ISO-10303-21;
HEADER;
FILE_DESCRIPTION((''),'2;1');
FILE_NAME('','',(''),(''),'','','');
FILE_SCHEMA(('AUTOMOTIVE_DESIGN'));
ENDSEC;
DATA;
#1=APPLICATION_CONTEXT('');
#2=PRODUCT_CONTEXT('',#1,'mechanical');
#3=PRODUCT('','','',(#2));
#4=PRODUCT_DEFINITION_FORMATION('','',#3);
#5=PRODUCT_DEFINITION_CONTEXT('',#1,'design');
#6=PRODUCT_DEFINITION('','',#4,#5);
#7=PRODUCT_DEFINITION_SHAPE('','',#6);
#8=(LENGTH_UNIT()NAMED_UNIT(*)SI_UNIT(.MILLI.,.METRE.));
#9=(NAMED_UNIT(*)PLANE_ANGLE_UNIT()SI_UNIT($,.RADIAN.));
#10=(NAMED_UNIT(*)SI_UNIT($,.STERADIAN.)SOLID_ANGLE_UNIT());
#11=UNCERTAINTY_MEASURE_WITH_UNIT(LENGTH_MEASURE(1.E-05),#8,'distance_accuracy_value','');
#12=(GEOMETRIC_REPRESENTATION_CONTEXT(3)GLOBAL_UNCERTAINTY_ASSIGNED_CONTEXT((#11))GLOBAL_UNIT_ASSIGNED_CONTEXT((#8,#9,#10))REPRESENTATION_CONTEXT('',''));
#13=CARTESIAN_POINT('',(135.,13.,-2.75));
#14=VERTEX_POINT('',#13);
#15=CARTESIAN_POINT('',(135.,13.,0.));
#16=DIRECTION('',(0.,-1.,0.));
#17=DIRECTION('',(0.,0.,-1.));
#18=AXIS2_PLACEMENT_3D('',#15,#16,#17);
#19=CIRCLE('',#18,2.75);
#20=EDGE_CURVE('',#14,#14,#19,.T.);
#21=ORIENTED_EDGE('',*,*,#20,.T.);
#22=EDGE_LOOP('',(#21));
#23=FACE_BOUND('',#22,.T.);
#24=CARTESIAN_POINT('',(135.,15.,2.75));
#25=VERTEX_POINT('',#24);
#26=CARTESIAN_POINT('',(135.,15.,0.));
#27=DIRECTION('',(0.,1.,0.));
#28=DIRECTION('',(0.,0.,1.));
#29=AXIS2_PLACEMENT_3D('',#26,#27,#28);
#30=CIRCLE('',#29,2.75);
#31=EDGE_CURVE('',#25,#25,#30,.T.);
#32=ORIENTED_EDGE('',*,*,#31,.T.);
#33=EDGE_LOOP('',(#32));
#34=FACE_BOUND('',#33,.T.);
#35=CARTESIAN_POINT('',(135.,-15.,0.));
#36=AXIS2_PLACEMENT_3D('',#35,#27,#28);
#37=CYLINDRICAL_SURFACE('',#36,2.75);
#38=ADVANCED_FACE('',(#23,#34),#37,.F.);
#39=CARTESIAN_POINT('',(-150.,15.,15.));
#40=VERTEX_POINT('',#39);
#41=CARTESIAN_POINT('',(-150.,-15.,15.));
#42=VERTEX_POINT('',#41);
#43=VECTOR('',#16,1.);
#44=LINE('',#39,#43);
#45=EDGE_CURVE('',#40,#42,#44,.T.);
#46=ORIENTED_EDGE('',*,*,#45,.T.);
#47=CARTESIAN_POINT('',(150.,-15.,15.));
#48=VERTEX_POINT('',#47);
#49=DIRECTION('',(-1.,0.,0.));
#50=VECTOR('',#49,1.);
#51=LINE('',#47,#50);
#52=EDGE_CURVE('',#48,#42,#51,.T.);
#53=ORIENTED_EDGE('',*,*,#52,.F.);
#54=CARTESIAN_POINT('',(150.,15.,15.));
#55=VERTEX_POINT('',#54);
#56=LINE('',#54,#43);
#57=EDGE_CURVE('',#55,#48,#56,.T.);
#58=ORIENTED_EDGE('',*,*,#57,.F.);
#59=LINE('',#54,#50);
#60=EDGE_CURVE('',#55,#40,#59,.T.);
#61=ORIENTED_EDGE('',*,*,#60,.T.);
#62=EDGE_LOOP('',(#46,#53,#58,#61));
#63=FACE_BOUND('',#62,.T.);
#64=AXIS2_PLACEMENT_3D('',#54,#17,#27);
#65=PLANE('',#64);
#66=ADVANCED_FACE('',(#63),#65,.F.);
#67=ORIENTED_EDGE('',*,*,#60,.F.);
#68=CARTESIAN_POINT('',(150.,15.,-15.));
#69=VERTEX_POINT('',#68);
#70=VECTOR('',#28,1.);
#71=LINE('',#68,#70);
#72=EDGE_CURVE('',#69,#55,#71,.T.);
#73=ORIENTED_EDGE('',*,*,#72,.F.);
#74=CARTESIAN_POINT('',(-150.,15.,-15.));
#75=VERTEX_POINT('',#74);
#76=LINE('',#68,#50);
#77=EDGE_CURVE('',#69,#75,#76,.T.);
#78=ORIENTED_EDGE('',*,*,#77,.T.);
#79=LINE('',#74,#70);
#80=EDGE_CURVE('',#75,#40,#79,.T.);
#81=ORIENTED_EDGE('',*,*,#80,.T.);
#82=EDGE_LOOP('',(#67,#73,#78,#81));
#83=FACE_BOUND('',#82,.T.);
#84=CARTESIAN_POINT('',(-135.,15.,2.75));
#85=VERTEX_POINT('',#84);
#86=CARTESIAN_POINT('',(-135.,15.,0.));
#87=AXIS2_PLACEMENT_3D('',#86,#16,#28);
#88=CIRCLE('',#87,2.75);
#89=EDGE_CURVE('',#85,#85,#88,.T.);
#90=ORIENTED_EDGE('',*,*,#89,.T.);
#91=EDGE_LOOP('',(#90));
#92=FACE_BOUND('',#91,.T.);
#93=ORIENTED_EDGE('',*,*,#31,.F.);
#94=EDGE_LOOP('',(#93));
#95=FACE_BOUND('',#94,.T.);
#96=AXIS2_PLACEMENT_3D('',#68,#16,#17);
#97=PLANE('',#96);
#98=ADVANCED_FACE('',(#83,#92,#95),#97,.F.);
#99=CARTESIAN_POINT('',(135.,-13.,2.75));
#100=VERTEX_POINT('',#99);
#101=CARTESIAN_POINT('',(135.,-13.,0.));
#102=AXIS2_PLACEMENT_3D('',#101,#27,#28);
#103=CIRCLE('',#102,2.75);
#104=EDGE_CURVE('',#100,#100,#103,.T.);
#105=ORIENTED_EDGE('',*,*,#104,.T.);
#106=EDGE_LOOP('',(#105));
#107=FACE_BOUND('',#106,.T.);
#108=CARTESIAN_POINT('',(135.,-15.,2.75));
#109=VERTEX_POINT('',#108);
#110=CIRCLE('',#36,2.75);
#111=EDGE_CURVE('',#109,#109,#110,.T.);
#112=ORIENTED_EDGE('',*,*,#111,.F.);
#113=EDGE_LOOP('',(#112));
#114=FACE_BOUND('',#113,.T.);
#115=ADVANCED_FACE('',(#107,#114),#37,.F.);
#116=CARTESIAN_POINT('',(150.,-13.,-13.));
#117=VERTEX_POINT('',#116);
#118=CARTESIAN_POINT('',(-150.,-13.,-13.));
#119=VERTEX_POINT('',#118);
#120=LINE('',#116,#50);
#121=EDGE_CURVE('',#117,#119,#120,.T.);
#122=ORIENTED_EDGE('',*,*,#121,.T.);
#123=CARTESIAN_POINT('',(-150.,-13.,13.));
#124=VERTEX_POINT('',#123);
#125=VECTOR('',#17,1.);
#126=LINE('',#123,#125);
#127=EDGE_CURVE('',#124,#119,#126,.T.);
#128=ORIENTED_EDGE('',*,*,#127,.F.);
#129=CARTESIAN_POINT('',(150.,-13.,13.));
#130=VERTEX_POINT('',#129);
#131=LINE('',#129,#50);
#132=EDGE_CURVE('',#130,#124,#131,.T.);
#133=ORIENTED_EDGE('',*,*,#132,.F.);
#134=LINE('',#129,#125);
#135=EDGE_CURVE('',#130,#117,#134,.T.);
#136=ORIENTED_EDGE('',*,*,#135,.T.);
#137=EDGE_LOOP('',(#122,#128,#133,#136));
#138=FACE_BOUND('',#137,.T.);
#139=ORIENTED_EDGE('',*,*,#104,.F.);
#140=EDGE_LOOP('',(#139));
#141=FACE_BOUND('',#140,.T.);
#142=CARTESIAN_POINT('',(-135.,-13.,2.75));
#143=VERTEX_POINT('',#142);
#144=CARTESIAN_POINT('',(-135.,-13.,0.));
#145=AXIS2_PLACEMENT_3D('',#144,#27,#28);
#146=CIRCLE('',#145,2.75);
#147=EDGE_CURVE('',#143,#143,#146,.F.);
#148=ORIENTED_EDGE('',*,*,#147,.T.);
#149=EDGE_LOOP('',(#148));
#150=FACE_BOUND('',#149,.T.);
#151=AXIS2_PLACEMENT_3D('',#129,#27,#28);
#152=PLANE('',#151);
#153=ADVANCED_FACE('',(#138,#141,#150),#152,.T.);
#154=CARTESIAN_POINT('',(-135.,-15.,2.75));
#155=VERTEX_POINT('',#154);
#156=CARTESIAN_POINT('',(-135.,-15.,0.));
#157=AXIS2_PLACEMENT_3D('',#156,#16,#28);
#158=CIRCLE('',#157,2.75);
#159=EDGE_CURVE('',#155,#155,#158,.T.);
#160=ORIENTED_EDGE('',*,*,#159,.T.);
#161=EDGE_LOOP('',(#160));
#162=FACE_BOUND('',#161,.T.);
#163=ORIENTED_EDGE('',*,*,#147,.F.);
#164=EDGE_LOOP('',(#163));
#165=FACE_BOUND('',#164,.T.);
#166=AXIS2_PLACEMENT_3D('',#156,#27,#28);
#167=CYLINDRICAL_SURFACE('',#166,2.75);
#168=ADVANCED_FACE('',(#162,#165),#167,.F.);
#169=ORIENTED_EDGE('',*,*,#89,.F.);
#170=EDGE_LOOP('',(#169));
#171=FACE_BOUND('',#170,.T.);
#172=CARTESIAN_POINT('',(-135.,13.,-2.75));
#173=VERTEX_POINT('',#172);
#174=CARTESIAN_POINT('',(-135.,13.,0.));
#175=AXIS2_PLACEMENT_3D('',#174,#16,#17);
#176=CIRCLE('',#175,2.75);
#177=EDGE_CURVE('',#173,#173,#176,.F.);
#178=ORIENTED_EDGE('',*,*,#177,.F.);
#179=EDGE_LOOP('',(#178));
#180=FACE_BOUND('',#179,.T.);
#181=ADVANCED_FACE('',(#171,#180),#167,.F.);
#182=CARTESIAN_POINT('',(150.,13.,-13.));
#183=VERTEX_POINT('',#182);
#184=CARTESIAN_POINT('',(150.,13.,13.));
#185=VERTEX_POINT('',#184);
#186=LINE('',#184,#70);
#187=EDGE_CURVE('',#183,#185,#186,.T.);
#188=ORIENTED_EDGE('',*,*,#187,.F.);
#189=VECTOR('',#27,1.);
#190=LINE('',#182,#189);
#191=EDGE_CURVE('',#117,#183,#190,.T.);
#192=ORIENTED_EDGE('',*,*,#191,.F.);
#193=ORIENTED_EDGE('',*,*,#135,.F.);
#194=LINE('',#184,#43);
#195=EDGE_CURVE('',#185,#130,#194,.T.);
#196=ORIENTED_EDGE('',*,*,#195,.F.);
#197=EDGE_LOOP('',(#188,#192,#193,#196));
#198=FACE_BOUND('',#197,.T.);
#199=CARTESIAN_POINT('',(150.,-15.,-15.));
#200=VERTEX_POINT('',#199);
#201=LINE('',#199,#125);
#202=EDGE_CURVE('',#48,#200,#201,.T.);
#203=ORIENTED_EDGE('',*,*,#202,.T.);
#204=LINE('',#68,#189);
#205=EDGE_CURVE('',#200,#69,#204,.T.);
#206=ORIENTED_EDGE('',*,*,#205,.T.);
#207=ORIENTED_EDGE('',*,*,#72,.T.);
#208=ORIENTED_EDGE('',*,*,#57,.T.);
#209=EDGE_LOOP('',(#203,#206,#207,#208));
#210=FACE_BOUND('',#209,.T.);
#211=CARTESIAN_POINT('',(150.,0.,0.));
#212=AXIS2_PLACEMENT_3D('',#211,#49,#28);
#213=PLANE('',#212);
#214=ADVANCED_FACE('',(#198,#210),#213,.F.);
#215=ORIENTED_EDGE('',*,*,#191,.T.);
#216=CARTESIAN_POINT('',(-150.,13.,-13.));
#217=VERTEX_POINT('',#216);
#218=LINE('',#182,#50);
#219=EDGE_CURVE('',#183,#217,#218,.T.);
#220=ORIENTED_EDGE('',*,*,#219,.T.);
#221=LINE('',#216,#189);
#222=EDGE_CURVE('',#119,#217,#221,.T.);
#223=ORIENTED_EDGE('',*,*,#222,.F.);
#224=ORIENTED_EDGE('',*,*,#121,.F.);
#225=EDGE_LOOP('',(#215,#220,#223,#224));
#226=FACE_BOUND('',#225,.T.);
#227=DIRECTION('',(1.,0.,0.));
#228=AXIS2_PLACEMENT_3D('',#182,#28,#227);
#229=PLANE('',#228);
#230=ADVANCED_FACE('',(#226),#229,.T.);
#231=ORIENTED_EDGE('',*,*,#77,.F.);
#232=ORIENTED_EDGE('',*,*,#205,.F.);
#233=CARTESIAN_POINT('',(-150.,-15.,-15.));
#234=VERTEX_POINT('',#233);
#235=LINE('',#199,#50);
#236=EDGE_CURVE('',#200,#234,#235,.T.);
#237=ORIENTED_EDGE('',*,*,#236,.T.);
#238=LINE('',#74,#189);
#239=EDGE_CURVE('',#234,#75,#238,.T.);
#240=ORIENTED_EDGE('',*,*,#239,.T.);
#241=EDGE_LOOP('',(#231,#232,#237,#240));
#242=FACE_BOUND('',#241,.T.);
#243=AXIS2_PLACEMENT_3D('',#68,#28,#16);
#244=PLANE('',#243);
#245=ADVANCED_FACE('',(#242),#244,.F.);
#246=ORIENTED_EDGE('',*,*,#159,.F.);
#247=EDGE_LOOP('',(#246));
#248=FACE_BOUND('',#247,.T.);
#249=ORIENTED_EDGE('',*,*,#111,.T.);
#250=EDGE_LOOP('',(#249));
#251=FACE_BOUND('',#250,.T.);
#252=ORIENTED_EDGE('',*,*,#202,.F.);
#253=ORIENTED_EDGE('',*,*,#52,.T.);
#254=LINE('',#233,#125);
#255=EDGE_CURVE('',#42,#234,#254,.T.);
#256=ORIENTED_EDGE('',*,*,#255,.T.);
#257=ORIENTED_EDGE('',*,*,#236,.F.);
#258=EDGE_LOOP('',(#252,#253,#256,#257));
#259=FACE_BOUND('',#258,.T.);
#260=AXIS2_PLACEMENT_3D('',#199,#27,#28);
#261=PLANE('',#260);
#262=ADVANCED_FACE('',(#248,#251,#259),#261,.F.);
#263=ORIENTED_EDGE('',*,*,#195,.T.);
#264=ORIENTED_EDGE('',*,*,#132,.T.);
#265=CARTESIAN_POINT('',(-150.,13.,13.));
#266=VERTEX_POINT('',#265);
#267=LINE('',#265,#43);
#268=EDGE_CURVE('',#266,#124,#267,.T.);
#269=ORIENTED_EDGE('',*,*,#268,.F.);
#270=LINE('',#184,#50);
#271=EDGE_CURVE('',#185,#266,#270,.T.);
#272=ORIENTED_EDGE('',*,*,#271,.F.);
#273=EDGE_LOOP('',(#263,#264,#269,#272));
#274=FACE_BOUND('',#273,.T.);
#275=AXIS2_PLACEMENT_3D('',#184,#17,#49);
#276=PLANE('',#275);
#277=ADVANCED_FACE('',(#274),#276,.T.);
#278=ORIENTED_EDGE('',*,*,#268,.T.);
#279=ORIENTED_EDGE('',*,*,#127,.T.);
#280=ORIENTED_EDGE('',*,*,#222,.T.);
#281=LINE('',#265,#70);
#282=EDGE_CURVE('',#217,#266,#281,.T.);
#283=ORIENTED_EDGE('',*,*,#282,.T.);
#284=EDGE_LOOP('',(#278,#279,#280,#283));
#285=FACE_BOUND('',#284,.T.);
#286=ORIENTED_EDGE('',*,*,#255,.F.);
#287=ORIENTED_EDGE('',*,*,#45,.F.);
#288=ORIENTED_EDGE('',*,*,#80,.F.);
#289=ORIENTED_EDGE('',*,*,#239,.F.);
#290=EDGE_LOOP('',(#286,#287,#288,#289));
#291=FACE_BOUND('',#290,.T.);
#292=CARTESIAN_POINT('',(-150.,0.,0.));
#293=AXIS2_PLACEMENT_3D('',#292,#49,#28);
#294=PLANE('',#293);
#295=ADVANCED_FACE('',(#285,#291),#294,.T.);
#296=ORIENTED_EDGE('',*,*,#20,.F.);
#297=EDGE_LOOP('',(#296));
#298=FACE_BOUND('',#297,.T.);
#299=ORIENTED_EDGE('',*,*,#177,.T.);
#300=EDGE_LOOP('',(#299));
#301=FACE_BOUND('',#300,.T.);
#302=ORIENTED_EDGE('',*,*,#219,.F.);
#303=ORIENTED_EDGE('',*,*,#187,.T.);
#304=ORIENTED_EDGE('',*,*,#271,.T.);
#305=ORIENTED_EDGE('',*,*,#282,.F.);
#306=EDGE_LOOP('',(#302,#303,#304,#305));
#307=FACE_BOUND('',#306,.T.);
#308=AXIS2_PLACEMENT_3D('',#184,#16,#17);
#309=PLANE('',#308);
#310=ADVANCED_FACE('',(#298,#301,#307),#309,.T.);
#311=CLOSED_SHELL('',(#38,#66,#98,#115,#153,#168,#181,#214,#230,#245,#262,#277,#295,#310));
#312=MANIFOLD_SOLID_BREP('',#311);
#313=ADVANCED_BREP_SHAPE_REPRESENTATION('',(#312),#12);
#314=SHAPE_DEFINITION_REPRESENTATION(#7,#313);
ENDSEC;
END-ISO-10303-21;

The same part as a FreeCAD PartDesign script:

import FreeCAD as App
import Part
import Sketcher
from FreeCAD import Vector


def add_polygon(sketch, points):
    """Adds a closed chain of lines whose ends are joined by coincident constraints."""
    first, n = sketch.GeometryCount, len(points)
    for a, b in zip(points, points[1:] + points[:1]):
        sketch.addGeometry(Part.LineSegment(App.Vector(*a, 0), App.Vector(*b, 0)), False)
    for i in range(n):
        sketch.addConstraint(Sketcher.Constraint("Coincident", first + i, 2, first + (i + 1) % n, 1))

doc = App.newDocument("Part")
params = doc.addObject("Spreadsheet::Sheet", "Params")
for row, (alias, value) in enumerate([
    ("sketch1_width", "30 mm"),
    ("sketch1_width2", "26 mm"),
    ("pad1_length", "300 mm"),
    ("sketch2_diameter", "5.5 mm"),
    ("pocket1_length", "304.985148 mm"),
], start=1):
    params.set(f"A{row}", alias)
    params.set(f"B{row}", "=" + value)
    params.setAlias(f"B{row}", alias)

body = doc.addObject("PartDesign::Body", "Body")

# Sketch on YZ plane
sketch1 = doc.addObject("Sketcher::SketchObject", "Sketch")
body.addObject(sketch1)
sketch1.AttachmentSupport = (doc.YZ_Plane, [""])
sketch1.MapMode = "FlatFace"
add_polygon(sketch1, [(15, 15), (-15, 15), (-15, -15), (15, -15)])  # lines 0-3
add_polygon(sketch1, [(-13, -13), (-13, 13), (13, 13), (13, -13)])  # lines 4-7
sketch1.addConstraint([
    Sketcher.Constraint("Horizontal", 0),
    Sketcher.Constraint("Vertical", 1),
    Sketcher.Constraint("Horizontal", 2),
    Sketcher.Constraint("Vertical", 3),
    Sketcher.Constraint("Vertical", 4),
    Sketcher.Constraint("Horizontal", 5),
    Sketcher.Constraint("Vertical", 6),
    Sketcher.Constraint("Horizontal", 7),
    Sketcher.Constraint("Symmetric", 0, 2, 2, 2, -1, 1),
    Sketcher.Constraint("Symmetric", 4, 2, 6, 2, -1, 1),
    Sketcher.Constraint("Equal", 2, 1),
    Sketcher.Constraint("Equal", 7, 4),
    Sketcher.Constraint("DistanceX", 0, 2, 0, 1, 30.0),
    Sketcher.Constraint("DistanceX", 5, 1, 5, 2, 26.0),
])
sketch1.setExpression("Constraints[20]", "Params.sketch1_width")
sketch1.setExpression("Constraints[21]", "Params.sketch1_width2")
pad1 = doc.addObject("PartDesign::Pad", "Pad")
body.addObject(pad1)
pad1.Profile = sketch1
pad1.setExpression("Length", "Params.pad1_length")
pad1.Midplane = True

# Sketch on XZ plane
sketch2 = doc.addObject("Sketcher::SketchObject", "Sketch001")
body.addObject(sketch2)
sketch2.AttachmentSupport = (doc.XZ_Plane, [""])
sketch2.MapMode = "FlatFace"
sketch2.addGeometry(Part.Circle(Vector(135, 0, 0), Vector(0, 0, 1), 2.8), False)
sketch2.addConstraint([
    Sketcher.Constraint("PointOnObject", 0, 3, -1),
    Sketcher.Constraint("Diameter", 0, 5.5),
    Sketcher.Constraint("DistanceX", -1, 1, 0, 3, 135.0),
])
sketch2.setExpression("Constraints[1]", "Params.sketch2_diameter")
pocket1 = doc.addObject("PartDesign::Pocket", "Pocket")
body.addObject(pocket1)
pocket1.Profile = sketch2
pocket1.setExpression("Length", "Params.pocket1_length")
pocket1.Midplane = True
doc.recompute()

mirrored = doc.addObject("PartDesign::Mirrored", "Mirrored")
body.addObject(mirrored)
mirrored.Originals = [pocket1]
mirrored.MirrorPlane = (doc.YZ_Plane, [""])
body.Tip = mirrored

doc.recompute()
